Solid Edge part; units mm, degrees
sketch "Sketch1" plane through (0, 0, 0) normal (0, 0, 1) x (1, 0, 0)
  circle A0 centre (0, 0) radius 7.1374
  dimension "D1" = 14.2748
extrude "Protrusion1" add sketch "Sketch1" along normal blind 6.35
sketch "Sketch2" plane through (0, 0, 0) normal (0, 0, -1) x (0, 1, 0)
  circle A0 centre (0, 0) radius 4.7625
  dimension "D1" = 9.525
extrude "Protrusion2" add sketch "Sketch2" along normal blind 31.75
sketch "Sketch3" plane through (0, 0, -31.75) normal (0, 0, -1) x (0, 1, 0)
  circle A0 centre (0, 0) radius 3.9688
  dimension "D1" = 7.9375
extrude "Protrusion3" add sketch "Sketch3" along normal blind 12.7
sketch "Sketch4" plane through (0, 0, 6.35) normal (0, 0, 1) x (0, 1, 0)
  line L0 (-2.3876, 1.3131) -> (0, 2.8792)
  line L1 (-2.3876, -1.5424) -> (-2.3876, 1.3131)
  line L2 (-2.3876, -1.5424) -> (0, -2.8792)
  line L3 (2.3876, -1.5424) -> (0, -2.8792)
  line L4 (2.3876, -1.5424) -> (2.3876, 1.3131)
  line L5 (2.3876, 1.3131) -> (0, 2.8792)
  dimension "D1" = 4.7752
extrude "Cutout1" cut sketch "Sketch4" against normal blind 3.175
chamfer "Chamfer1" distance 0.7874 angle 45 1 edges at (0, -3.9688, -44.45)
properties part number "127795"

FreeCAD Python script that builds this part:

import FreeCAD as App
import Part
import Sketcher

V = App.Vector
Q = App.Units.Quantity


def edges_at(feature, points):
    """Names of the edges that pass closest to the given points."""
    edges = feature.Shape.Edges
    near = lambda p: min(range(len(edges)), key=lambda i: edges[i].distToShape(Part.Vertex(*p))[0])
    return sorted({f"Edge{near(p) + 1}" for p in points})


def add_polygon(sketch, points):
    """Adds a closed chain of lines whose ends are joined by coincident constraints."""
    first, n = sketch.GeometryCount, len(points)
    for a, b in zip(points, points[1:] + points[:1]):
        sketch.addGeometry(Part.LineSegment(App.Vector(*a, 0), App.Vector(*b, 0)), False)
    for i in range(n):
        sketch.addConstraint(Sketcher.Constraint("Coincident", first + i, 2, first + (i + 1) % n, 1))

doc = App.newDocument("Part")
params = doc.addObject("Spreadsheet::Sheet", "Params")
for row, (alias, value) in enumerate([
    ("sketch1_diameter", "0.562 in"),
    ("pad1_length", "0.25 in"),
    ("sketch2_diameter", "0.375 in"),
    ("pad2_length", "1.25 in"),
    ("sketch3_diameter", "0.3125 in"),
    ("pad3_length", "0.5 in"),
    ("pocket1_length", "0.125 in"),
    ("chamfer_size", "0.031 in"),
], start=1):
    params.set(f"A{row}", alias)
    params.set(f"B{row}", "=" + value)
    params.setAlias(f"B{row}", alias)

body = doc.addObject("PartDesign::Body", "Body")

sketch1 = body.newObject("Sketcher::SketchObject", "Sketch")
sketch1.AttachmentSupport = (doc.getObject("XY_Plane"), [""])
sketch1.MapMode = "FlatFace"
sketch1.addGeometry(Part.Circle(V(0, 0, 0), V(0, 0, 1), 7), False)
sketch1.addConstraint([
    Sketcher.Constraint("Coincident", 0, 3, -1, 1),
    Sketcher.Constraint("Diameter", 0, Q("0.562 in")),
])
sketch1.setExpression("Constraints[1]", "Params.sketch1_diameter")
pad1 = body.newObject("PartDesign::Pad", "Pad")
pad1.Profile = sketch1
pad1.setExpression("Length", "Params.pad1_length")

sketch2 = body.newObject("Sketcher::SketchObject", "Sketch001")
sketch2.AttachmentSupport = (doc.getObject("XY_Plane"), [""])
sketch2.MapMode = "FlatFace"
sketch2.addGeometry(Part.Circle(V(0, 0, 0), V(0, 0, 1), 4.8), False)
sketch2.addConstraint([
    Sketcher.Constraint("Coincident", 0, 3, -1, 1),
    Sketcher.Constraint("Diameter", 0, Q("0.375 in")),
])
sketch2.setExpression("Constraints[1]", "Params.sketch2_diameter")
pad2 = body.newObject("PartDesign::Pad", "Pad001")
pad2.Profile = sketch2
pad2.setExpression("Length", "Params.pad2_length")
pad2.Reversed = True

sketch3 = body.newObject("Sketcher::SketchObject", "Sketch002")
sketch3.AttachmentSupport = (doc.getObject("XY_Plane"), [""])
sketch3.MapMode = "FlatFace"
sketch3.AttachmentOffset = App.Placement(V(0, 0, -1.25 * 25.4), App.Rotation())
sketch3.addGeometry(Part.Circle(V(0, 0, 0), V(0, 0, 1), 4), False)
sketch3.addConstraint([
    Sketcher.Constraint("Coincident", 0, 3, -1, 1),
    Sketcher.Constraint("Diameter", 0, Q("0.3125 in")),
])
sketch3.setExpression("Constraints[1]", "Params.sketch3_diameter")
pad3 = body.newObject("PartDesign::Pad", "Pad002")
pad3.Profile = sketch3
pad3.setExpression("Length", "Params.pad3_length")
pad3.Reversed = True

sketch4 = body.newObject("Sketcher::SketchObject", "Sketch003")
sketch4.AttachmentSupport = (doc.getObject("XY_Plane"), [""])
sketch4.MapMode = "FlatFace"
sketch4.AttachmentOffset = App.Placement(V(0, 0, 0.25 * 25.4), App.Rotation())
add_polygon(sketch4, [(-2.9, 0), (-1.3, -2.4), (1.5, -2.4), (2.9, 0), (1.5, 2.4), (-1.3, 2.4)])
sketch4.addConstraint([
    Sketcher.Constraint("Horizontal", 1),
    Sketcher.Constraint("Horizontal", 4),
    Sketcher.Constraint("Symmetric", 2, 2, 5, 2, -1, 1),
    Sketcher.Constraint("Symmetric", 1, 2, 3, 2, -1),
    Sketcher.Constraint("PointOnObject", 2, 2, -1),
    Sketcher.Constraint("Vertical", 0, 2, 4, 2),
    Sketcher.Constraint("DistanceY", 0, 2, -1, 1, Q("0.094 in")),
    Sketcher.Constraint("DistanceX", 1, 1, 1, 2, 2.8555),
    Sketcher.Constraint("DistanceX", 0, 2, -1, 1, Q("0.0517 in")),
    Sketcher.Constraint("DistanceX", 5, 2, 2, 2, Q("0.2267 in")),
])
pocket1 = body.newObject("PartDesign::Pocket", "Pocket")
pocket1.Profile = sketch4
pocket1.setExpression("Length", "Params.pocket1_length")
doc.recompute()

chamfer = body.newObject("PartDesign::Chamfer", "Chamfer")
chamfer.Base = (pocket1, edges_at(pocket1, [(0, -3.969, -44.45)]))
chamfer.setExpression("Size", "Params.chamfer_size")

doc.recompute()
